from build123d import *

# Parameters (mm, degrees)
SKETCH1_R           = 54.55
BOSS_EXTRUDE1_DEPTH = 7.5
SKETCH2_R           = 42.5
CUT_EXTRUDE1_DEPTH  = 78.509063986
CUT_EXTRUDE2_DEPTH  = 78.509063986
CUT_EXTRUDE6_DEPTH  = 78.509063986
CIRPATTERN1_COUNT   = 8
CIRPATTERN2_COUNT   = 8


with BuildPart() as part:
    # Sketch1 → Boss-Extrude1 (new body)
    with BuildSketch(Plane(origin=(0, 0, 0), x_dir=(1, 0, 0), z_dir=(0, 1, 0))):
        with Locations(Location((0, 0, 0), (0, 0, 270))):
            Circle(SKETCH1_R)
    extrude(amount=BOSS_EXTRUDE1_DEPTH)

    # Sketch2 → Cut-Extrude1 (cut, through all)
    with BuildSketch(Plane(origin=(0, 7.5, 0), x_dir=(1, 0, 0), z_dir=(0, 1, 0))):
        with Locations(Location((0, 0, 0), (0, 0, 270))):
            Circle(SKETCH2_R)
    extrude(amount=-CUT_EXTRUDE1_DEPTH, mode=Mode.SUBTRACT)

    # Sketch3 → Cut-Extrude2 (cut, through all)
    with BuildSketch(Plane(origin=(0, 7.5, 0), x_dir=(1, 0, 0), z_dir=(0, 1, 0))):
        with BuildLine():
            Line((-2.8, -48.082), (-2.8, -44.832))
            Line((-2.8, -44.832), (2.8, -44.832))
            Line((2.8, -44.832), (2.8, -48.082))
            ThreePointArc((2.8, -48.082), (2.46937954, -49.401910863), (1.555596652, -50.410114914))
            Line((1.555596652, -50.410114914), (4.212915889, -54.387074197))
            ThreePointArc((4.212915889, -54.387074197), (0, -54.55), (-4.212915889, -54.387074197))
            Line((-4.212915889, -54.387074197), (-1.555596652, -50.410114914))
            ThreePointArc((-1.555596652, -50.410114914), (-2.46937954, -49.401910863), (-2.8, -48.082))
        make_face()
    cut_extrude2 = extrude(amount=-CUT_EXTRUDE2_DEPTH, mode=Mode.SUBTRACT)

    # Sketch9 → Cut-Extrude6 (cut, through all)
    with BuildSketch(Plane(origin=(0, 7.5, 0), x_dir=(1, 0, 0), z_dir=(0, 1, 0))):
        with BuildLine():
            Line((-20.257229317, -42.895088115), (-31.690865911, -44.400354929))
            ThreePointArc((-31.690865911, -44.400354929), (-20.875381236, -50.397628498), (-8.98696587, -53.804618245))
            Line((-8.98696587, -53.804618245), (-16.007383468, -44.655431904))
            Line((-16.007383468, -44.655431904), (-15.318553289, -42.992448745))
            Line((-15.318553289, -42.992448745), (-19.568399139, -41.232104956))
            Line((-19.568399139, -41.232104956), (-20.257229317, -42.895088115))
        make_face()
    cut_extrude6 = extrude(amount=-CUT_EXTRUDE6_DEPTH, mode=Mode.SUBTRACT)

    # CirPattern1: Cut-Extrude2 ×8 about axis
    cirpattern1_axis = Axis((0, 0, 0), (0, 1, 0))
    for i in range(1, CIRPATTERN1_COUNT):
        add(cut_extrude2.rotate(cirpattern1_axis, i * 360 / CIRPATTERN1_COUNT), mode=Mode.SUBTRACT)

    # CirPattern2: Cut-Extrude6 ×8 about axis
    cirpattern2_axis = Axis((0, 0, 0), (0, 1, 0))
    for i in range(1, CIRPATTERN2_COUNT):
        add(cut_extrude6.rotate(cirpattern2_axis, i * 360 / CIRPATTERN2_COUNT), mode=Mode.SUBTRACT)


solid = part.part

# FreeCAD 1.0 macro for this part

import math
import FreeCAD as App
import Part
import Sketcher

V = App.Vector
Q = App.Units.Quantity

doc = App.newDocument("Part")
body = doc.addObject("PartDesign::Body", "Body")

sketch1 = body.newObject("Sketcher::SketchObject", "Sketch")
sketch1.AttachmentSupport = (doc.getObject("XZ_Plane"), [""])
sketch1.MapMode = "FlatFace"
sketch1.addGeometry(Part.Circle(V(0, 0, 0), V(0, 0, 1), 54.55), False)
sketch1.addConstraint([
    Sketcher.Constraint("Coincident", 0, 3, -1, 1),
    Sketcher.Constraint("Diameter", 0, 109.1),
])
pad1 = body.newObject("PartDesign::Pad", "Pad")
pad1.Profile = sketch1
pad1.Length = 7.5
pad1.Reversed = True

sketch2 = body.newObject("Sketcher::SketchObject", "Sketch001")
sketch2.AttachmentSupport = (doc.getObject("XZ_Plane"), [""])
sketch2.MapMode = "FlatFace"
sketch2.AttachmentOffset = App.Placement(V(0, 0, -7.5), App.Rotation())
sketch2.addGeometry(Part.Circle(V(0, 0, 0), V(0, 0, 1), 42.5), False)
sketch2.addConstraint([
    Sketcher.Constraint("Coincident", 0, 3, -1, 1),
    Sketcher.Constraint("Diameter", 0, 85.0),
])
pocket1 = body.newObject("PartDesign::Pocket", "Pocket")
pocket1.Profile = sketch2
pocket1.Type = "ThroughAll"
pocket1.Reversed = True

sketch3 = body.newObject("Sketcher::SketchObject", "Sketch002")
sketch3.AttachmentSupport = (doc.getObject("XZ_Plane"), [""])
sketch3.MapMode = "FlatFace"
sketch3.AttachmentOffset = App.Placement(V(0, 0, -7.5), App.Rotation())
sketch3.addGeometry([
    Part.LineSegment(V(-2.8, 44.832, 0), V(-2.8, 48.082, 0)),
    Part.ArcOfCircle(Part.Circle(V(0, 48.082, 0), V(0, 0, 1), 2.8), math.radians(123.75), math.radians(180)),
    Part.LineSegment(V(-1.555597, 50.410115, 0), V(-4.212916, 54.387074, 0)),
    Part.ArcOfCircle(Part.Circle(V(0, 0, 0), V(0, 0, 1), 54.55), math.radians(85.570616), math.radians(94.429384)),
    Part.LineSegment(V(4.212916, 54.387074, 0), V(1.555597, 50.410115, 0)),
    Part.ArcOfCircle(Part.Circle(V(0, 48.082, 0), V(0, 0, 1), 2.8), math.radians(0), math.radians(56.25)),
    Part.LineSegment(V(2.8, 48.082, 0), V(2.8, 44.832, 0)),
    Part.LineSegment(V(2.8, 44.832, 0), V(-2.8, 44.832, 0)),
], False)
sketch3.addConstraint([
    Sketcher.Constraint("Tangent", 0, 2, 1, 2),
    Sketcher.Constraint("Coincident", 1, 1, 2, 1),
    Sketcher.Constraint("Coincident", 2, 2, 3, 2),
    Sketcher.Constraint("Coincident", 3, 1, 4, 1),
    Sketcher.Constraint("Coincident", 4, 2, 5, 2),
    Sketcher.Constraint("Tangent", 5, 1, 6, 1),
    Sketcher.Constraint("Coincident", 6, 2, 7, 1),
    Sketcher.Constraint("Coincident", 7, 2, 0, 1),
    Sketcher.Constraint("Vertical", 0),
    Sketcher.Constraint("Vertical", 6),
    Sketcher.Constraint("Horizontal", 7),
    Sketcher.Constraint("Coincident", 3, 3, -1, 1),
    Sketcher.Constraint("Coincident", 5, 3, 1, 3),
    Sketcher.Constraint("Equal", 1, 5),
    Sketcher.Constraint("Symmetric", 1, 1, 4, 2, -2),
    Sketcher.Constraint("Horizontal", 2, 2, 3, 1),
    Sketcher.Constraint("Radius", 1, 2.8),
    Sketcher.Constraint("Radius", 3, 54.55),
    Sketcher.Constraint("DistanceY", 0, 1, 0, 2, 3.25),
    Sketcher.Constraint("Angle", 2, Q("123.75 deg")),
    Sketcher.Constraint("DistanceY", -1, 1, 1, 3, 48.082),
    Sketcher.Constraint("Distance", 2, 4.783048),
])
pocket2 = body.newObject("PartDesign::Pocket", "Pocket001")
pocket2.Profile = sketch3
pocket2.Type = "ThroughAll"
pocket2.Reversed = True

sketch4 = body.newObject("Sketcher::SketchObject", "Sketch003")
sketch4.AttachmentSupport = (doc.getObject("XZ_Plane"), [""])
sketch4.MapMode = "FlatFace"
sketch4.AttachmentOffset = App.Placement(V(0, 0, -7.5), App.Rotation())
sketch4.addGeometry([
    Part.LineSegment(V(-20.257229, 42.895088, 0), V(-31.690866, 44.400355, 0)),
    Part.ArcOfCircle(Part.Circle(V(0, 0, 0), V(0, 0, 1), 54.55), math.radians(99.482556), math.radians(125.517444)),
    Part.LineSegment(V(-8.986966, 53.804618, 0), V(-16.007383, 44.655432, 0)),
    Part.LineSegment(V(-16.007383, 44.655432, 0), V(-15.318553, 42.992449, 0)),
    Part.LineSegment(V(-15.318553, 42.992449, 0), V(-19.568399, 41.232105, 0)),
    Part.LineSegment(V(-19.568399, 41.232105, 0), V(-20.257229, 42.895088, 0)),
], False)
sketch4.addConstraint([
    Sketcher.Constraint("Coincident", 0, 2, 1, 2),
    Sketcher.Constraint("Coincident", 1, 1, 2, 1),
    Sketcher.Constraint("Coincident", 2, 2, 3, 1),
    Sketcher.Constraint("Coincident", 3, 2, 4, 1),
    Sketcher.Constraint("Coincident", 4, 2, 5, 1),
    Sketcher.Constraint("Coincident", 5, 2, 0, 1),
    Sketcher.Constraint("Coincident", 1, 3, -1, 1),
    Sketcher.Constraint("Perpendicular", 3, 4),
    Sketcher.Constraint("Perpendicular", 4, 5),
    Sketcher.Constraint("Equal", 0, 2),
    Sketcher.Constraint("Equal", 3, 5),
    Sketcher.Constraint("Radius", 1, 54.55),
    Sketcher.Constraint("Angle", 0, Q("172.5 deg")),
    Sketcher.Constraint("Angle", 2, Q("-127.5 deg")),
    Sketcher.Constraint("Angle", 3, Q("-67.5 deg")),
    Sketcher.Constraint("Distance", 3, 1.8),
    Sketcher.Constraint("Distance", 4, 4.6),
    Sketcher.Constraint("DistanceX", 4, 2, -1, 1, 19.568399),
])
pocket3 = body.newObject("PartDesign::Pocket", "Pocket002")
pocket3.Profile = sketch4
pocket3.Type = "ThroughAll"
pocket3.Reversed = True
doc.recompute()

polarpattern = body.newObject("PartDesign::PolarPattern", "PolarPattern")
polarpattern.Originals = [pocket2]
polarpattern.Axis = (doc.getObject("Y_Axis"), [""])
polarpattern.Angle = 360
polarpattern.Occurrences = 8
body.Tip = polarpattern
doc.recompute()

polarpattern2 = body.newObject("PartDesign::PolarPattern", "PolarPattern001")
polarpattern2.Originals = [pocket3]
polarpattern2.Axis = (doc.getObject("Y_Axis"), [""])
polarpattern2.Angle = 360
polarpattern2.Occurrences = 8
body.Tip = polarpattern2

doc.recompute()
